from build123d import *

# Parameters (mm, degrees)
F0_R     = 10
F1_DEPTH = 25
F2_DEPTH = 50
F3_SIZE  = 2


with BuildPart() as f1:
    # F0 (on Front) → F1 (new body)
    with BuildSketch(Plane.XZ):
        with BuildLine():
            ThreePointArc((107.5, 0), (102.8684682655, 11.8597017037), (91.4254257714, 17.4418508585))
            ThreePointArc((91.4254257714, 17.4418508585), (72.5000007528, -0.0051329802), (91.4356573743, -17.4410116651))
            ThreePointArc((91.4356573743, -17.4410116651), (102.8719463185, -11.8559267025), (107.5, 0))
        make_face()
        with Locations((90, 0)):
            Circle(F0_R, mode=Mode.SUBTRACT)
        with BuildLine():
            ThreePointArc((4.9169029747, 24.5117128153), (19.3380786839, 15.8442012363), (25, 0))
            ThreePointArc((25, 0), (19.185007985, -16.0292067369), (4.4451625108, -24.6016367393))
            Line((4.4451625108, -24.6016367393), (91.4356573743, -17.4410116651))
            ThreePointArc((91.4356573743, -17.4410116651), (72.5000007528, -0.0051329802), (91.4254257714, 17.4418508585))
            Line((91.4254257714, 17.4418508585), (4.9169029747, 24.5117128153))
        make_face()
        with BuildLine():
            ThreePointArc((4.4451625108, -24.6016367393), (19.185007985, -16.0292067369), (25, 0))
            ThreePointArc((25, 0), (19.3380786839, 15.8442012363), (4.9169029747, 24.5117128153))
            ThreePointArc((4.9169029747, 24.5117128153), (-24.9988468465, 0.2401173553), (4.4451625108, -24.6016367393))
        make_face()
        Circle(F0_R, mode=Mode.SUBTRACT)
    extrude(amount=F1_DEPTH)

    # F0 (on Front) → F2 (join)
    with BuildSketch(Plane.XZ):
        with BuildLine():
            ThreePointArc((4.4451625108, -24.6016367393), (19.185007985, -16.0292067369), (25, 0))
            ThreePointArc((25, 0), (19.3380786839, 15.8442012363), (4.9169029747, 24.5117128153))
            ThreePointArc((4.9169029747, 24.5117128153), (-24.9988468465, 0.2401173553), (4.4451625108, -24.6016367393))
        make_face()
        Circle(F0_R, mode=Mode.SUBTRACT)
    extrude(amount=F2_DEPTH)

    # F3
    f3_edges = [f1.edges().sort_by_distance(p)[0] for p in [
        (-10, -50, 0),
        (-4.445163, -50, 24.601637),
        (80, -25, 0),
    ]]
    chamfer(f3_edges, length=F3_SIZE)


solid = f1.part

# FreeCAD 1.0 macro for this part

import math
import FreeCAD as App
import Part
import Sketcher
from FreeCAD import Vector


def edges_at(feature, points):
    """Names of the edges that pass closest to the given points."""
    edges = feature.Shape.Edges
    near = lambda p: min(range(len(edges)), key=lambda i: edges[i].distToShape(Part.Vertex(*p))[0])
    return sorted({f"Edge{near(p) + 1}" for p in points})

doc = App.newDocument("Part")
params = doc.addObject("Spreadsheet::Sheet", "Params")
for row, (alias, value) in enumerate([
    ("sketch1_diameter", "20 mm"),
    ("sketch1_radius", "25 mm"),
    ("sketch1_radius2", "17.5 mm"),
    ("pad1_length", "25 mm"),
    ("sketch2_diameter", "20 mm"),
    ("sketch2_radius", "25 mm"),
    ("pad2_length", "50 mm"),
    ("chamfer_size", "2 mm"),
], start=1):
    params.set(f"A{row}", alias)
    params.set(f"B{row}", "=" + value)
    params.setAlias(f"B{row}", alias)

body = doc.addObject("PartDesign::Body", "Body")

# Sketch on XZ plane
sketch1 = body.newObject("Sketcher::SketchObject", "Sketch")
sketch1.AttachmentSupport = (doc.getObject("XZ_Plane"), [""])
sketch1.MapMode = "FlatFace"
sketch1.addGeometry(Part.ArcOfCircle(Part.Circle(Vector(90, 0, 0), Vector(0, 0, 1), 18), math.radians(0), math.radians(85)), False)
sketch1.addGeometry(Part.LineSegment(Vector(91, 17, 0), Vector(5, 25, 0)), False)
sketch1.addGeometry(Part.ArcOfCircle(Part.Circle(Vector(0, 0, 0), Vector(0, 0, 1), 25), math.radians(79), math.radians(280)), False)
sketch1.addGeometry(Part.LineSegment(Vector(4, -25, 0), Vector(91, -17, 0)), False)
sketch1.addGeometry(Part.ArcOfCircle(Part.Circle(Vector(90, 0, 0), Vector(0, 0, 1), 18), math.radians(-85), math.radians(0)), False)
sketch1.addGeometry(Part.Circle(Vector(0, 0, 0), Vector(0, 0, 1), 10), False)
sketch1.addGeometry(Part.Circle(Vector(90, 0, 0), Vector(0, 0, 1), 10), False)
sketch1.addConstraint(Sketcher.Constraint("Tangent", 0, 2, 1, 1))
sketch1.addConstraint(Sketcher.Constraint("Coincident", 1, 2, 2, 1))
sketch1.addConstraint(Sketcher.Constraint("Coincident", 2, 2, 3, 1))
sketch1.addConstraint(Sketcher.Constraint("Tangent", 3, 2, 4, 1))
sketch1.addConstraint(Sketcher.Constraint("Tangent", 4, 2, 0, 1))
sketch1.addConstraint(Sketcher.Constraint("Coincident", 2, 3, -1, 1))
sketch1.addConstraint(Sketcher.Constraint("Coincident", 5, 3, -1, 1))
sketch1.addConstraint(Sketcher.Constraint("Coincident", 6, 3, 0, 3))
sketch1.addConstraint(Sketcher.Constraint("Equal", 0, 4))
sketch1.addConstraint(Sketcher.Constraint("Equal", 5, 6))
sketch1.addConstraint(Sketcher.Constraint("PointOnObject", 0, 3, -1))
sketch1.addConstraint(Sketcher.Constraint("PointOnObject", 4, 2, -1))
sketch1.addConstraint(Sketcher.Constraint("Diameter", 5, 20.0))
sketch1.addConstraint(Sketcher.Constraint("Radius", 2, 25.0))
sketch1.addConstraint(Sketcher.Constraint("Radius", 0, 17.5))
sketch1.addConstraint(Sketcher.Constraint("DistanceX", -1, 1, 0, 3, 90.0))
sketch1.addConstraint(Sketcher.Constraint("Distance", 3, 87.284711))
sketch1.addConstraint(Sketcher.Constraint("DistanceY", 0, 2, 1, 2, 7.069862))
sketch1.setExpression("Constraints[12]", "Params.sketch1_diameter")
sketch1.setExpression("Constraints[13]", "Params.sketch1_radius")
sketch1.setExpression("Constraints[14]", "Params.sketch1_radius2")
pad1 = body.newObject("PartDesign::Pad", "Pad")
pad1.Profile = sketch1
pad1.setExpression("Length", "Params.pad1_length")

# Sketch on XZ plane
sketch2 = body.newObject("Sketcher::SketchObject", "Sketch001")
sketch2.AttachmentSupport = (doc.getObject("XZ_Plane"), [""])
sketch2.MapMode = "FlatFace"
sketch2.addGeometry(Part.ArcOfCircle(Part.Circle(Vector(0, 0, 0), Vector(0, 0, 1), 25), math.radians(-80), math.radians(0)), False)
sketch2.addGeometry(Part.ArcOfCircle(Part.Circle(Vector(0, 0, 0), Vector(0, 0, 1), 25), math.radians(0), math.radians(79)), False)
sketch2.addGeometry(Part.ArcOfCircle(Part.Circle(Vector(0, 0, 0), Vector(0, 0, 1), 25), math.radians(79), math.radians(280)), False)
sketch2.addGeometry(Part.Circle(Vector(0, 0, 0), Vector(0, 0, 1), 10), False)
sketch2.addConstraint(Sketcher.Constraint("Tangent", 0, 2, 1, 1))
sketch2.addConstraint(Sketcher.Constraint("Tangent", 1, 2, 2, 1))
sketch2.addConstraint(Sketcher.Constraint("Tangent", 2, 2, 0, 1))
sketch2.addConstraint(Sketcher.Constraint("Coincident", 0, 3, -1, 1))
sketch2.addConstraint(Sketcher.Constraint("Coincident", 3, 3, -1, 1))
sketch2.addConstraint(Sketcher.Constraint("PointOnObject", 0, 2, -1))
sketch2.addConstraint(Sketcher.Constraint("Diameter", 3, 20.0))
sketch2.addConstraint(Sketcher.Constraint("Radius", 0, 25.0))
sketch2.addConstraint(Sketcher.Constraint("DistanceX", -1, 1, 1, 2, 4.916903))
sketch2.addConstraint(Sketcher.Constraint("DistanceX", -1, 1, 2, 2, 4.445163))
sketch2.setExpression("Constraints[6]", "Params.sketch2_diameter")
sketch2.setExpression("Constraints[7]", "Params.sketch2_radius")
pad2 = body.newObject("PartDesign::Pad", "Pad001")
pad2.Profile = sketch2
pad2.setExpression("Length", "Params.pad2_length")
doc.recompute()

chamfer = body.newObject("PartDesign::Chamfer", "Chamfer")
chamfer.Base = (pad2, edges_at(pad2, [(-10, -50, 0), (-24.999, -50, 0.24), (80, -25, 0)]))
chamfer.setExpression("Size", "Params.chamfer_size")

doc.recompute()
